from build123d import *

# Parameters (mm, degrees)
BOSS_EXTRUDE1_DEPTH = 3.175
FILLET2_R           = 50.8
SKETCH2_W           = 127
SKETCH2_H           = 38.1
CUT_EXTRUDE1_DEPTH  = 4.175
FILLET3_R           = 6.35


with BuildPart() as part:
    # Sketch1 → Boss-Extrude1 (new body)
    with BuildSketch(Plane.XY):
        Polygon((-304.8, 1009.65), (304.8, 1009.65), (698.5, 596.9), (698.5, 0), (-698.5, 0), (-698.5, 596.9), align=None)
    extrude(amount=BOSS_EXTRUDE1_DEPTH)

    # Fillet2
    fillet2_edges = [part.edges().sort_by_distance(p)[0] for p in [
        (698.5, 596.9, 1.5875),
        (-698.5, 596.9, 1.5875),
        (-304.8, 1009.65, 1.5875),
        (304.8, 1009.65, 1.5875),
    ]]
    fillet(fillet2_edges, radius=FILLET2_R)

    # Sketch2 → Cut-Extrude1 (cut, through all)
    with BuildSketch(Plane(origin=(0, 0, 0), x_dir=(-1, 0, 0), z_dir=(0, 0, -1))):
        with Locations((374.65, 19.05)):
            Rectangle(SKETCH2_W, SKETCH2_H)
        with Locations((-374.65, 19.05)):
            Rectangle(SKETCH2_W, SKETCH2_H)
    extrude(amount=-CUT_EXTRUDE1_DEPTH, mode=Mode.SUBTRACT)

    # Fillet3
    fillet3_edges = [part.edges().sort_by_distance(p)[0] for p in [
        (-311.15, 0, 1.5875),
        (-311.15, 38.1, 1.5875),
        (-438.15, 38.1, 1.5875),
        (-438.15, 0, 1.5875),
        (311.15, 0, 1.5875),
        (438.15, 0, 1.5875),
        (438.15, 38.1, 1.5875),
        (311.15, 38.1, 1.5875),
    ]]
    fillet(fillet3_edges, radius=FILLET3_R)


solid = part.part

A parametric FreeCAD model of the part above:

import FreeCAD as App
import Part
import Sketcher
from FreeCAD import Vector
Q = App.Units.Quantity


def edges_at(feature, points):
    """Names of the edges that pass closest to the given points."""
    edges = feature.Shape.Edges
    near = lambda p: min(range(len(edges)), key=lambda i: edges[i].distToShape(Part.Vertex(*p))[0])
    return sorted({f"Edge{near(p) + 1}" for p in points})

doc = App.newDocument("Part")
body = doc.addObject("PartDesign::Body", "Body")

# Sketch on XY plane
sketch1 = body.newObject("Sketcher::SketchObject", "Sketch")
sketch1.AttachmentSupport = (doc.getObject("XY_Plane"), [""])
sketch1.MapMode = "FlatFace"
sketch1.addGeometry([
    Part.LineSegment(Vector(305, 1010, 0), Vector(-305, 1010, 0)),  # 0
    Part.LineSegment(Vector(-305, 1010, 0), Vector(-698, 597, 0)),  # 1
    Part.LineSegment(Vector(-698, 597, 0), Vector(-698, 0, 0)),  # 2
    Part.LineSegment(Vector(-698, 0, 0), Vector(698, 0, 0)),  # 3
    Part.LineSegment(Vector(698, 0, 0), Vector(698, 597, 0)),  # 4
    Part.LineSegment(Vector(698, 597, 0), Vector(305, 1010, 0)),  # 5
], False)
sketch1.addConstraint([
    Sketcher.Constraint("Coincident", 0, 2, 1, 1),
    Sketcher.Constraint("Coincident", 1, 2, 2, 1),
    Sketcher.Constraint("Coincident", 2, 2, 3, 1),
    Sketcher.Constraint("Coincident", 3, 2, 4, 1),
    Sketcher.Constraint("Coincident", 4, 2, 5, 1),
    Sketcher.Constraint("Coincident", 5, 2, 0, 1),
    Sketcher.Constraint("Horizontal", 0),
    Sketcher.Constraint("Vertical", 2),
    Sketcher.Constraint("Horizontal", 3),
    Sketcher.Constraint("Vertical", 4),
    Sketcher.Constraint("Symmetric", 2, 2, 3, 2, -1, 1),
    Sketcher.Constraint("Horizontal", 1, 2, 4, 2),
    Sketcher.Constraint("Equal", 1, 5),
    Sketcher.Constraint("DistanceX", 0, 2, 0, 1, Q("24 in")),
    Sketcher.Constraint("DistanceX", 3, 1, 3, 2, Q("55 in")),
    Sketcher.Constraint("DistanceY", 2, 2, 2, 1, Q("23.5 in")),
    Sketcher.Constraint("DistanceY", -1, 1, 0, 2, Q("39.75 in")),
])
pad1 = body.newObject("PartDesign::Pad", "Pad")
pad1.Profile = sketch1
pad1.Length = Q("0.125 in")
doc.recompute()

fillet = body.newObject("PartDesign::Fillet", "Fillet")
fillet.Base = (pad1, edges_at(pad1, [
    (698.5, 596.9, 1.587),
    (-698.5, 596.9, 1.587),
    (-304.8, 1009.65, 1.587),
    (304.8, 1009.65, 1.587),
]))
fillet.Radius = Q("2 in")

# Sketch on XY plane
sketch2 = body.newObject("Sketcher::SketchObject", "Sketch001")
sketch2.AttachmentSupport = (doc.getObject("XY_Plane"), [""])
sketch2.MapMode = "FlatFace"
sketch2.addGeometry([
    Part.LineSegment(Vector(-311, 38, 0), Vector(-311, 0, 0)),  # 0
    Part.LineSegment(Vector(-311, 0, 0), Vector(-438, 0, 0)),  # 1
    Part.LineSegment(Vector(-438, 0, 0), Vector(-438, 38, 0)),  # 2
    Part.LineSegment(Vector(-438, 38, 0), Vector(-311, 38, 0)),  # 3
    Part.LineSegment(Vector(438, 38, 0), Vector(438, 0, 0)),  # 4
    Part.LineSegment(Vector(438, 0, 0), Vector(311, 0, 0)),  # 5
    Part.LineSegment(Vector(311, 0, 0), Vector(311, 38, 0)),  # 6
    Part.LineSegment(Vector(311, 38, 0), Vector(438, 38, 0)),  # 7
], False)
sketch2.addConstraint([
    Sketcher.Constraint("Coincident", 0, 2, 1, 1),
    Sketcher.Constraint("Coincident", 1, 2, 2, 1),
    Sketcher.Constraint("Coincident", 2, 2, 3, 1),
    Sketcher.Constraint("Coincident", 3, 2, 0, 1),
    Sketcher.Constraint("Coincident", 4, 2, 5, 1),
    Sketcher.Constraint("Coincident", 5, 2, 6, 1),
    Sketcher.Constraint("Coincident", 6, 2, 7, 1),
    Sketcher.Constraint("Coincident", 7, 2, 4, 1),
    Sketcher.Constraint("Vertical", 0),
    Sketcher.Constraint("Horizontal", 1),
    Sketcher.Constraint("Vertical", 2),
    Sketcher.Constraint("Horizontal", 3),
    Sketcher.Constraint("Vertical", 4),
    Sketcher.Constraint("Horizontal", 5),
    Sketcher.Constraint("Vertical", 6),
    Sketcher.Constraint("Horizontal", 7),
    Sketcher.Constraint("Symmetric", 1, 2, 4, 2, -1, 1),
    Sketcher.Constraint("Symmetric", 0, 2, 5, 2, -2),
    Sketcher.Constraint("Horizontal", 3, 2, 6, 2),
    Sketcher.Constraint("DistanceX", 1, 2, 1, 1, Q("5 in")),
    Sketcher.Constraint("DistanceY", 0, 2, 0, 1, Q("1.5 in")),
    Sketcher.Constraint("DistanceX", 0, 2, 4, 2, Q("29.5 in")),
])
pocket1 = body.newObject("PartDesign::Pocket", "Pocket")
pocket1.Profile = sketch2
pocket1.Type = "ThroughAll"
pocket1.Reversed = True
doc.recompute()

fillet2 = body.newObject("PartDesign::Fillet", "Fillet001")
fillet2.Base = (pocket1, edges_at(pocket1, [
    (-311.15, 0, 1.587),
    (-311.15, 38.1, 1.587),
    (-438.15, 38.1, 1.587),
    (-438.15, 0, 1.587),
    (311.15, 0, 1.587),
    (438.15, 0, 1.587),
    (438.15, 38.1, 1.587),
    (311.15, 38.1, 1.587),
]))
fillet2.Radius = Q("0.25 in")

doc.recompute()
